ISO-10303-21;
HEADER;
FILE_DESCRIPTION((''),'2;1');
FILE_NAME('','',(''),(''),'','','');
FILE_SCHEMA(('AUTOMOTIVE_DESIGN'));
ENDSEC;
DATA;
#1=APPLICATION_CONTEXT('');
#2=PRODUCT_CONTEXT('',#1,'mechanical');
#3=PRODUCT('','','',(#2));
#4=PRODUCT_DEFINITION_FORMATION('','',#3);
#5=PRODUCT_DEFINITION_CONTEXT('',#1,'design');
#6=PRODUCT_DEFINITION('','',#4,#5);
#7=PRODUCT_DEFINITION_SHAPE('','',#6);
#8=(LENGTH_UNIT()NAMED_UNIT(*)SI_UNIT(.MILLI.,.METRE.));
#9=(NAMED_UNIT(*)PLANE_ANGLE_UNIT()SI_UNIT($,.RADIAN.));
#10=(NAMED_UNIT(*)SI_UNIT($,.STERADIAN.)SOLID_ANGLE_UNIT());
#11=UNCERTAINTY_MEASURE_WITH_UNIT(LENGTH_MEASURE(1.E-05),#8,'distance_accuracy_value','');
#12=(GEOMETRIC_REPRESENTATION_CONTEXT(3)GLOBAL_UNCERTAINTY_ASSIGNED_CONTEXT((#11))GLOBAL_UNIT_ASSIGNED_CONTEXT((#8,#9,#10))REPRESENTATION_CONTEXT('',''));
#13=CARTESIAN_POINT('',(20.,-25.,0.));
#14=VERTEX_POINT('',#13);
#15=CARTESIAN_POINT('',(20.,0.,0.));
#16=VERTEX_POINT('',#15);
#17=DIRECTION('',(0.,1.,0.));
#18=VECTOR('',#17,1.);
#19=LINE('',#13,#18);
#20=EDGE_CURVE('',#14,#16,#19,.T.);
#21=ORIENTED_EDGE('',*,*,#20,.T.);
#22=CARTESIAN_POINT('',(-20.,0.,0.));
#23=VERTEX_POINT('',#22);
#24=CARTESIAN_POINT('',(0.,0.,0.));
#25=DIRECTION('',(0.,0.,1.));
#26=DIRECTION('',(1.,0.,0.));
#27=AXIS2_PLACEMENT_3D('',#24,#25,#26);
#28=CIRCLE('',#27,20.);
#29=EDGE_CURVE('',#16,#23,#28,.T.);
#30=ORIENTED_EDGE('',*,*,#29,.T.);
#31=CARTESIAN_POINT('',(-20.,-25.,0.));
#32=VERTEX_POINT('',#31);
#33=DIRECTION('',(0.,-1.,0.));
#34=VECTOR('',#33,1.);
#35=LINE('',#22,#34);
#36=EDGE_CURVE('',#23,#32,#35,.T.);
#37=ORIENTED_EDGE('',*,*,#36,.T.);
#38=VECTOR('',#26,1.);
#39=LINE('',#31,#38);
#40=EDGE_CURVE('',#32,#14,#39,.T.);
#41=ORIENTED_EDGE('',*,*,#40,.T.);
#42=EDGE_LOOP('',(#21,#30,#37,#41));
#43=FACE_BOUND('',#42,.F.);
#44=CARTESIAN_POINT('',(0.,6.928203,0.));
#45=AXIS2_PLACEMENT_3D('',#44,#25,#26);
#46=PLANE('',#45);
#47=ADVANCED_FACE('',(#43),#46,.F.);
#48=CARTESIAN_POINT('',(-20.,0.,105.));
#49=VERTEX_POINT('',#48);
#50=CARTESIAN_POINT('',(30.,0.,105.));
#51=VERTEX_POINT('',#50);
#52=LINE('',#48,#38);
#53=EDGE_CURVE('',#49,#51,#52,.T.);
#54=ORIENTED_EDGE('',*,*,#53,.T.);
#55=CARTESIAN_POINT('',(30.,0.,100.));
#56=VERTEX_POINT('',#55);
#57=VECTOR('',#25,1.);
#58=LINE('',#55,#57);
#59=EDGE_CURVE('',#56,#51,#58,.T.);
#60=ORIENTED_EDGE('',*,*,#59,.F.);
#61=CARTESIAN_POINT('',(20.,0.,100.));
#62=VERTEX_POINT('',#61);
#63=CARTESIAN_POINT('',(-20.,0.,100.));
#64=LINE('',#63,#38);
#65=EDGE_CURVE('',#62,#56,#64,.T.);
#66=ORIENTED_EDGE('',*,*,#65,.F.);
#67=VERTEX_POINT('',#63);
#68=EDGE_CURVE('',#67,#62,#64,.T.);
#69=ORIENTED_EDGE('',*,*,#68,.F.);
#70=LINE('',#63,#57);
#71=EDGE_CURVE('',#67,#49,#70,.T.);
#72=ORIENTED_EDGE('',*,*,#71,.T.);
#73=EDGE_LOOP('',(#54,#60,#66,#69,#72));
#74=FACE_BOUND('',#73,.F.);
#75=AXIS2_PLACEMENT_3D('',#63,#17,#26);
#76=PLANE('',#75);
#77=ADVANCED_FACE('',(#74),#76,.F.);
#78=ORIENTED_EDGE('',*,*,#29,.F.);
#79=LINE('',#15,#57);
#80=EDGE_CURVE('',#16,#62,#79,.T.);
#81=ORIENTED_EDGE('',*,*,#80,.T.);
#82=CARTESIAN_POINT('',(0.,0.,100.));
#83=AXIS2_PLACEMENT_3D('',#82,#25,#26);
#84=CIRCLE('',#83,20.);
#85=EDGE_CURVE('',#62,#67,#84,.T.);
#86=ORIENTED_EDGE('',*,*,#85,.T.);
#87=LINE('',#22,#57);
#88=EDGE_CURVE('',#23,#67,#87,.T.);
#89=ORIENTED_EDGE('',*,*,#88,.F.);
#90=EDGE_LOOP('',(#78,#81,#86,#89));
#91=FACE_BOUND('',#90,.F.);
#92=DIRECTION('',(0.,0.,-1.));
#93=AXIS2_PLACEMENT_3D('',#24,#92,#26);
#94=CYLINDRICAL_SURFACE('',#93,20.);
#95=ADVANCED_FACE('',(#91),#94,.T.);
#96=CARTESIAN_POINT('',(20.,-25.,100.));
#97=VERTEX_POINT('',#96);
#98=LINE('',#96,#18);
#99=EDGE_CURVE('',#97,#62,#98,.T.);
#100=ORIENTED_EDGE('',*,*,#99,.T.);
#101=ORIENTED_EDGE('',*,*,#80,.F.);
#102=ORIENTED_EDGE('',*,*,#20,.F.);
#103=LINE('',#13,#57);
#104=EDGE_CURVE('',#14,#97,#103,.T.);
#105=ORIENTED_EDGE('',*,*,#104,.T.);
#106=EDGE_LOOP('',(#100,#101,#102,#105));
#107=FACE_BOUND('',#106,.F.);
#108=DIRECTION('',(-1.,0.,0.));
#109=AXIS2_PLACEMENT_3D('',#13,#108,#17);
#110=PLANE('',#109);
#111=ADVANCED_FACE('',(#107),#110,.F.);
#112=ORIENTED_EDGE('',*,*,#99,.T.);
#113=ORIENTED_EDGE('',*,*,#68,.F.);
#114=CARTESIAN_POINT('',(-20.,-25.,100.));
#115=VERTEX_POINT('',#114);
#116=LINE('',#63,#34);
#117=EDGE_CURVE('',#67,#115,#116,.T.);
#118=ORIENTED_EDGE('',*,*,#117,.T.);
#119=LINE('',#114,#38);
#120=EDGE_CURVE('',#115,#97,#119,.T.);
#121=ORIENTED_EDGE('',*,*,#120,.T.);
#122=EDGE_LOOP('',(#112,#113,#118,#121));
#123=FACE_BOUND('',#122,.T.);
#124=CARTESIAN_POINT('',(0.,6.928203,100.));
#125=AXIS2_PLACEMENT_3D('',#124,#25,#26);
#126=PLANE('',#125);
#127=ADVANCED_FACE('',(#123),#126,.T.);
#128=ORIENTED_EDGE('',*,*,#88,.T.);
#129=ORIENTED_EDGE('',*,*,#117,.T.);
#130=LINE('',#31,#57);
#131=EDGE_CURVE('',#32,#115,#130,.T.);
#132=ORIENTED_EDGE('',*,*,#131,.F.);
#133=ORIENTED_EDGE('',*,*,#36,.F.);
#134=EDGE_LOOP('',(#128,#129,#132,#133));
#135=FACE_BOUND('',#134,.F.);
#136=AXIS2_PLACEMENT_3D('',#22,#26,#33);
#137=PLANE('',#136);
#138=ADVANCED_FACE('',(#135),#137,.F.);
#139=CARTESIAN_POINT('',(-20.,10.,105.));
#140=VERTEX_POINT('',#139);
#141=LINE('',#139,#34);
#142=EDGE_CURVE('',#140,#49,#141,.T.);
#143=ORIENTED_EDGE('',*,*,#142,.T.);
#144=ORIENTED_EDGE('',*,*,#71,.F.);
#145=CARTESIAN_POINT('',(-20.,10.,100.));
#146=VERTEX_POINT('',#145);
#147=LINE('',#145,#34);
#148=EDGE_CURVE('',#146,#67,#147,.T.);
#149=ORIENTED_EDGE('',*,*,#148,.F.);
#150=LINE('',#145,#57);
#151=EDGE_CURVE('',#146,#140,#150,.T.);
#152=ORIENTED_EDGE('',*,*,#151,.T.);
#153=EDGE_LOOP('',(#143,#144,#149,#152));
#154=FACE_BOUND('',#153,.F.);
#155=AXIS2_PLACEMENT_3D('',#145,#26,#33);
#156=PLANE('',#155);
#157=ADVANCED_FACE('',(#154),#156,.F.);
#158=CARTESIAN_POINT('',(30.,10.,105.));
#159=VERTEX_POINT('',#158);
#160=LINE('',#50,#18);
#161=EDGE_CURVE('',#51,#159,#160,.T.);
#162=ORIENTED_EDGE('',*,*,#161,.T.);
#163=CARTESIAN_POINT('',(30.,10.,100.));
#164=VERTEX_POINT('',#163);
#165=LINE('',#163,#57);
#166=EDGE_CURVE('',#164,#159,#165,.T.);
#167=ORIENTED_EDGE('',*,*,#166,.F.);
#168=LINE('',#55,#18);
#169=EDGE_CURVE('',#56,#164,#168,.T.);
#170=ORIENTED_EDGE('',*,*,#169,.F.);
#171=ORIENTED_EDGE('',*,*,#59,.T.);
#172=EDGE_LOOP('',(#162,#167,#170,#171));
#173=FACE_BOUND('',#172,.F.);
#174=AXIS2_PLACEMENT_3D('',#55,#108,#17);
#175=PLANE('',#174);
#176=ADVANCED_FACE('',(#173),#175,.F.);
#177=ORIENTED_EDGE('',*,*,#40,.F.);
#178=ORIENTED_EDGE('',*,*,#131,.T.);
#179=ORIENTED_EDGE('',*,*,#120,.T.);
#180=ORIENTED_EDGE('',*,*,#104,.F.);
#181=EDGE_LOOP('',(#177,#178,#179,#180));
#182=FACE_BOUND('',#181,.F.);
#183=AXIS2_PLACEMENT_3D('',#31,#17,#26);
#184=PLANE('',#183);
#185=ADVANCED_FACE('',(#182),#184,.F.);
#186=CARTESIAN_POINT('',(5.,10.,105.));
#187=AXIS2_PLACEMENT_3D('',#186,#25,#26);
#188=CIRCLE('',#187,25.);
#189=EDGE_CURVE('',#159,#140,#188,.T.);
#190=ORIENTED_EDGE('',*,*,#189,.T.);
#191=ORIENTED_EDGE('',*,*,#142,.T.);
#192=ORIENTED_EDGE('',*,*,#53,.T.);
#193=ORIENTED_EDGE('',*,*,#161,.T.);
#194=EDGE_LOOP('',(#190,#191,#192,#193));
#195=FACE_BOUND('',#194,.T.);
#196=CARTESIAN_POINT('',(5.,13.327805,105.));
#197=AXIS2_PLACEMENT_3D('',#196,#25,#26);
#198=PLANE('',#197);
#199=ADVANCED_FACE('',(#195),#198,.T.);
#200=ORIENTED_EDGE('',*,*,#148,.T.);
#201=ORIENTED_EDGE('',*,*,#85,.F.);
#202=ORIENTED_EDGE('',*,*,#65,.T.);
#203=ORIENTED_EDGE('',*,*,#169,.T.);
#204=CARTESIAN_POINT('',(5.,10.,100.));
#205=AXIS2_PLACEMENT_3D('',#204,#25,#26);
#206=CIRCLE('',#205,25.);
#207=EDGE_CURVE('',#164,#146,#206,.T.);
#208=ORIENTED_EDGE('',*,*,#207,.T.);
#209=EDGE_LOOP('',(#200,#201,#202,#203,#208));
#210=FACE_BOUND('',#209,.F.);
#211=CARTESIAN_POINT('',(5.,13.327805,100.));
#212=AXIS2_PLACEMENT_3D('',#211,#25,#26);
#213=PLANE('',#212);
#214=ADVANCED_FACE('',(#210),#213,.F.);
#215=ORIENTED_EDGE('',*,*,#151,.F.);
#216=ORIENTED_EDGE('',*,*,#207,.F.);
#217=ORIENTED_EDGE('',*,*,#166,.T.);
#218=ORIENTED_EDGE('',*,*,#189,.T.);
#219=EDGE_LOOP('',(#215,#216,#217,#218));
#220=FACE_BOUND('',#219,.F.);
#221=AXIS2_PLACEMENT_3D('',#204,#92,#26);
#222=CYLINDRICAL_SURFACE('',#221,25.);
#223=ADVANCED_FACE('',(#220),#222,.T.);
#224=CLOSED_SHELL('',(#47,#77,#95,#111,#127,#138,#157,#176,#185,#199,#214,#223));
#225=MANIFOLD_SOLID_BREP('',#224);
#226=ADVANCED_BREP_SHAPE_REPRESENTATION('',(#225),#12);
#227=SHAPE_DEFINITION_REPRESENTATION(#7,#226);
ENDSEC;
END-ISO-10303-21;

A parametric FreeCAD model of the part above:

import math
import FreeCAD as App
import Part
import Sketcher

V = App.Vector
Q = App.Units.Quantity

doc = App.newDocument("Part")
params = doc.addObject("Spreadsheet::Sheet", "Params")
for row, (alias, value) in enumerate([
    ("sketch1_radius", "20 mm"),
    ("sketch1_height", "25 mm"),
    ("pad1_length", "100 mm"),
    ("sketch2_radius", "25 mm"),
    ("sketch2_height", "10 mm"),
    ("pad2_length", "5 mm"),
], start=1):
    params.set(f"A{row}", alias)
    params.set(f"B{row}", "=" + value)
    params.setAlias(f"B{row}", alias)

body = doc.addObject("PartDesign::Body", "Body")

sketch1 = body.newObject("Sketcher::SketchObject", "Sketch")
sketch1.AttachmentSupport = (doc.getObject("XY_Plane"), [""])
sketch1.MapMode = "FlatFace"
sketch1.addGeometry([
    Part.ArcOfCircle(Part.Circle(V(0, 0, 0), V(0, 0, 1), 20), math.radians(0), math.radians(180)),
    Part.LineSegment(V(-20, 0, 0), V(-20, -25, 0)),
    Part.LineSegment(V(-20, -25, 0), V(20, -25, 0)),
    Part.LineSegment(V(20, -25, 0), V(20, 0, 0)),
], False)
sketch1.addConstraint([
    Sketcher.Constraint("Tangent", 0, 2, 1, 1),
    Sketcher.Constraint("Coincident", 1, 2, 2, 1),
    Sketcher.Constraint("Coincident", 2, 2, 3, 1),
    Sketcher.Constraint("Tangent", 3, 2, 0, 1),
    Sketcher.Constraint("Vertical", 1),
    Sketcher.Constraint("Horizontal", 2),
    Sketcher.Constraint("Vertical", 3),
    Sketcher.Constraint("Coincident", 0, 3, -1, 1),
    Sketcher.Constraint("Radius", 0, Q("20 mm")),
    Sketcher.Constraint("DistanceY", 1, 2, 1, 1, Q("25 mm")),
])
sketch1.setExpression("Constraints[8]", "Params.sketch1_radius")
sketch1.setExpression("Constraints[9]", "Params.sketch1_height")
pad1 = body.newObject("PartDesign::Pad", "Pad")
pad1.Profile = sketch1
pad1.setExpression("Length", "Params.pad1_length")

sketch2 = body.newObject("Sketcher::SketchObject", "Sketch001")
sketch2.AttachmentSupport = (doc.getObject("XY_Plane"), [""])
sketch2.MapMode = "FlatFace"
sketch2.AttachmentOffset = App.Placement(V(0, 0, 100), App.Rotation())
sketch2.addGeometry([
    Part.LineSegment(V(-20, 10, 0), V(-20, 0, 0)),
    Part.LineSegment(V(-20, 0, 0), V(30, 0, 0)),
    Part.LineSegment(V(30, 0, 0), V(30, 10, 0)),
    Part.ArcOfCircle(Part.Circle(V(5, 10, 0), V(0, 0, 1), 25), math.radians(0), math.radians(180)),
], False)
sketch2.addConstraint([
    Sketcher.Constraint("Coincident", 0, 2, 1, 1),
    Sketcher.Constraint("Coincident", 1, 2, 2, 1),
    Sketcher.Constraint("Tangent", 2, 2, 3, 1),
    Sketcher.Constraint("Tangent", 3, 2, 0, 1),
    Sketcher.Constraint("Vertical", 0),
    Sketcher.Constraint("Horizontal", 1),
    Sketcher.Constraint("Vertical", 2),
    Sketcher.Constraint("PointOnObject", 0, 2, -1),
    Sketcher.Constraint("Radius", 3, Q("25 mm")),
    Sketcher.Constraint("DistanceY", 0, 2, 0, 1, Q("10 mm")),
    Sketcher.Constraint("DistanceX", -1, 1, 3, 3, Q("5 mm")),
])
sketch2.setExpression("Constraints[8]", "Params.sketch2_radius")
sketch2.setExpression("Constraints[9]", "Params.sketch2_height")
pad2 = body.newObject("PartDesign::Pad", "Pad001")
pad2.Profile = sketch2
pad2.setExpression("Length", "Params.pad2_length")

doc.recompute()
